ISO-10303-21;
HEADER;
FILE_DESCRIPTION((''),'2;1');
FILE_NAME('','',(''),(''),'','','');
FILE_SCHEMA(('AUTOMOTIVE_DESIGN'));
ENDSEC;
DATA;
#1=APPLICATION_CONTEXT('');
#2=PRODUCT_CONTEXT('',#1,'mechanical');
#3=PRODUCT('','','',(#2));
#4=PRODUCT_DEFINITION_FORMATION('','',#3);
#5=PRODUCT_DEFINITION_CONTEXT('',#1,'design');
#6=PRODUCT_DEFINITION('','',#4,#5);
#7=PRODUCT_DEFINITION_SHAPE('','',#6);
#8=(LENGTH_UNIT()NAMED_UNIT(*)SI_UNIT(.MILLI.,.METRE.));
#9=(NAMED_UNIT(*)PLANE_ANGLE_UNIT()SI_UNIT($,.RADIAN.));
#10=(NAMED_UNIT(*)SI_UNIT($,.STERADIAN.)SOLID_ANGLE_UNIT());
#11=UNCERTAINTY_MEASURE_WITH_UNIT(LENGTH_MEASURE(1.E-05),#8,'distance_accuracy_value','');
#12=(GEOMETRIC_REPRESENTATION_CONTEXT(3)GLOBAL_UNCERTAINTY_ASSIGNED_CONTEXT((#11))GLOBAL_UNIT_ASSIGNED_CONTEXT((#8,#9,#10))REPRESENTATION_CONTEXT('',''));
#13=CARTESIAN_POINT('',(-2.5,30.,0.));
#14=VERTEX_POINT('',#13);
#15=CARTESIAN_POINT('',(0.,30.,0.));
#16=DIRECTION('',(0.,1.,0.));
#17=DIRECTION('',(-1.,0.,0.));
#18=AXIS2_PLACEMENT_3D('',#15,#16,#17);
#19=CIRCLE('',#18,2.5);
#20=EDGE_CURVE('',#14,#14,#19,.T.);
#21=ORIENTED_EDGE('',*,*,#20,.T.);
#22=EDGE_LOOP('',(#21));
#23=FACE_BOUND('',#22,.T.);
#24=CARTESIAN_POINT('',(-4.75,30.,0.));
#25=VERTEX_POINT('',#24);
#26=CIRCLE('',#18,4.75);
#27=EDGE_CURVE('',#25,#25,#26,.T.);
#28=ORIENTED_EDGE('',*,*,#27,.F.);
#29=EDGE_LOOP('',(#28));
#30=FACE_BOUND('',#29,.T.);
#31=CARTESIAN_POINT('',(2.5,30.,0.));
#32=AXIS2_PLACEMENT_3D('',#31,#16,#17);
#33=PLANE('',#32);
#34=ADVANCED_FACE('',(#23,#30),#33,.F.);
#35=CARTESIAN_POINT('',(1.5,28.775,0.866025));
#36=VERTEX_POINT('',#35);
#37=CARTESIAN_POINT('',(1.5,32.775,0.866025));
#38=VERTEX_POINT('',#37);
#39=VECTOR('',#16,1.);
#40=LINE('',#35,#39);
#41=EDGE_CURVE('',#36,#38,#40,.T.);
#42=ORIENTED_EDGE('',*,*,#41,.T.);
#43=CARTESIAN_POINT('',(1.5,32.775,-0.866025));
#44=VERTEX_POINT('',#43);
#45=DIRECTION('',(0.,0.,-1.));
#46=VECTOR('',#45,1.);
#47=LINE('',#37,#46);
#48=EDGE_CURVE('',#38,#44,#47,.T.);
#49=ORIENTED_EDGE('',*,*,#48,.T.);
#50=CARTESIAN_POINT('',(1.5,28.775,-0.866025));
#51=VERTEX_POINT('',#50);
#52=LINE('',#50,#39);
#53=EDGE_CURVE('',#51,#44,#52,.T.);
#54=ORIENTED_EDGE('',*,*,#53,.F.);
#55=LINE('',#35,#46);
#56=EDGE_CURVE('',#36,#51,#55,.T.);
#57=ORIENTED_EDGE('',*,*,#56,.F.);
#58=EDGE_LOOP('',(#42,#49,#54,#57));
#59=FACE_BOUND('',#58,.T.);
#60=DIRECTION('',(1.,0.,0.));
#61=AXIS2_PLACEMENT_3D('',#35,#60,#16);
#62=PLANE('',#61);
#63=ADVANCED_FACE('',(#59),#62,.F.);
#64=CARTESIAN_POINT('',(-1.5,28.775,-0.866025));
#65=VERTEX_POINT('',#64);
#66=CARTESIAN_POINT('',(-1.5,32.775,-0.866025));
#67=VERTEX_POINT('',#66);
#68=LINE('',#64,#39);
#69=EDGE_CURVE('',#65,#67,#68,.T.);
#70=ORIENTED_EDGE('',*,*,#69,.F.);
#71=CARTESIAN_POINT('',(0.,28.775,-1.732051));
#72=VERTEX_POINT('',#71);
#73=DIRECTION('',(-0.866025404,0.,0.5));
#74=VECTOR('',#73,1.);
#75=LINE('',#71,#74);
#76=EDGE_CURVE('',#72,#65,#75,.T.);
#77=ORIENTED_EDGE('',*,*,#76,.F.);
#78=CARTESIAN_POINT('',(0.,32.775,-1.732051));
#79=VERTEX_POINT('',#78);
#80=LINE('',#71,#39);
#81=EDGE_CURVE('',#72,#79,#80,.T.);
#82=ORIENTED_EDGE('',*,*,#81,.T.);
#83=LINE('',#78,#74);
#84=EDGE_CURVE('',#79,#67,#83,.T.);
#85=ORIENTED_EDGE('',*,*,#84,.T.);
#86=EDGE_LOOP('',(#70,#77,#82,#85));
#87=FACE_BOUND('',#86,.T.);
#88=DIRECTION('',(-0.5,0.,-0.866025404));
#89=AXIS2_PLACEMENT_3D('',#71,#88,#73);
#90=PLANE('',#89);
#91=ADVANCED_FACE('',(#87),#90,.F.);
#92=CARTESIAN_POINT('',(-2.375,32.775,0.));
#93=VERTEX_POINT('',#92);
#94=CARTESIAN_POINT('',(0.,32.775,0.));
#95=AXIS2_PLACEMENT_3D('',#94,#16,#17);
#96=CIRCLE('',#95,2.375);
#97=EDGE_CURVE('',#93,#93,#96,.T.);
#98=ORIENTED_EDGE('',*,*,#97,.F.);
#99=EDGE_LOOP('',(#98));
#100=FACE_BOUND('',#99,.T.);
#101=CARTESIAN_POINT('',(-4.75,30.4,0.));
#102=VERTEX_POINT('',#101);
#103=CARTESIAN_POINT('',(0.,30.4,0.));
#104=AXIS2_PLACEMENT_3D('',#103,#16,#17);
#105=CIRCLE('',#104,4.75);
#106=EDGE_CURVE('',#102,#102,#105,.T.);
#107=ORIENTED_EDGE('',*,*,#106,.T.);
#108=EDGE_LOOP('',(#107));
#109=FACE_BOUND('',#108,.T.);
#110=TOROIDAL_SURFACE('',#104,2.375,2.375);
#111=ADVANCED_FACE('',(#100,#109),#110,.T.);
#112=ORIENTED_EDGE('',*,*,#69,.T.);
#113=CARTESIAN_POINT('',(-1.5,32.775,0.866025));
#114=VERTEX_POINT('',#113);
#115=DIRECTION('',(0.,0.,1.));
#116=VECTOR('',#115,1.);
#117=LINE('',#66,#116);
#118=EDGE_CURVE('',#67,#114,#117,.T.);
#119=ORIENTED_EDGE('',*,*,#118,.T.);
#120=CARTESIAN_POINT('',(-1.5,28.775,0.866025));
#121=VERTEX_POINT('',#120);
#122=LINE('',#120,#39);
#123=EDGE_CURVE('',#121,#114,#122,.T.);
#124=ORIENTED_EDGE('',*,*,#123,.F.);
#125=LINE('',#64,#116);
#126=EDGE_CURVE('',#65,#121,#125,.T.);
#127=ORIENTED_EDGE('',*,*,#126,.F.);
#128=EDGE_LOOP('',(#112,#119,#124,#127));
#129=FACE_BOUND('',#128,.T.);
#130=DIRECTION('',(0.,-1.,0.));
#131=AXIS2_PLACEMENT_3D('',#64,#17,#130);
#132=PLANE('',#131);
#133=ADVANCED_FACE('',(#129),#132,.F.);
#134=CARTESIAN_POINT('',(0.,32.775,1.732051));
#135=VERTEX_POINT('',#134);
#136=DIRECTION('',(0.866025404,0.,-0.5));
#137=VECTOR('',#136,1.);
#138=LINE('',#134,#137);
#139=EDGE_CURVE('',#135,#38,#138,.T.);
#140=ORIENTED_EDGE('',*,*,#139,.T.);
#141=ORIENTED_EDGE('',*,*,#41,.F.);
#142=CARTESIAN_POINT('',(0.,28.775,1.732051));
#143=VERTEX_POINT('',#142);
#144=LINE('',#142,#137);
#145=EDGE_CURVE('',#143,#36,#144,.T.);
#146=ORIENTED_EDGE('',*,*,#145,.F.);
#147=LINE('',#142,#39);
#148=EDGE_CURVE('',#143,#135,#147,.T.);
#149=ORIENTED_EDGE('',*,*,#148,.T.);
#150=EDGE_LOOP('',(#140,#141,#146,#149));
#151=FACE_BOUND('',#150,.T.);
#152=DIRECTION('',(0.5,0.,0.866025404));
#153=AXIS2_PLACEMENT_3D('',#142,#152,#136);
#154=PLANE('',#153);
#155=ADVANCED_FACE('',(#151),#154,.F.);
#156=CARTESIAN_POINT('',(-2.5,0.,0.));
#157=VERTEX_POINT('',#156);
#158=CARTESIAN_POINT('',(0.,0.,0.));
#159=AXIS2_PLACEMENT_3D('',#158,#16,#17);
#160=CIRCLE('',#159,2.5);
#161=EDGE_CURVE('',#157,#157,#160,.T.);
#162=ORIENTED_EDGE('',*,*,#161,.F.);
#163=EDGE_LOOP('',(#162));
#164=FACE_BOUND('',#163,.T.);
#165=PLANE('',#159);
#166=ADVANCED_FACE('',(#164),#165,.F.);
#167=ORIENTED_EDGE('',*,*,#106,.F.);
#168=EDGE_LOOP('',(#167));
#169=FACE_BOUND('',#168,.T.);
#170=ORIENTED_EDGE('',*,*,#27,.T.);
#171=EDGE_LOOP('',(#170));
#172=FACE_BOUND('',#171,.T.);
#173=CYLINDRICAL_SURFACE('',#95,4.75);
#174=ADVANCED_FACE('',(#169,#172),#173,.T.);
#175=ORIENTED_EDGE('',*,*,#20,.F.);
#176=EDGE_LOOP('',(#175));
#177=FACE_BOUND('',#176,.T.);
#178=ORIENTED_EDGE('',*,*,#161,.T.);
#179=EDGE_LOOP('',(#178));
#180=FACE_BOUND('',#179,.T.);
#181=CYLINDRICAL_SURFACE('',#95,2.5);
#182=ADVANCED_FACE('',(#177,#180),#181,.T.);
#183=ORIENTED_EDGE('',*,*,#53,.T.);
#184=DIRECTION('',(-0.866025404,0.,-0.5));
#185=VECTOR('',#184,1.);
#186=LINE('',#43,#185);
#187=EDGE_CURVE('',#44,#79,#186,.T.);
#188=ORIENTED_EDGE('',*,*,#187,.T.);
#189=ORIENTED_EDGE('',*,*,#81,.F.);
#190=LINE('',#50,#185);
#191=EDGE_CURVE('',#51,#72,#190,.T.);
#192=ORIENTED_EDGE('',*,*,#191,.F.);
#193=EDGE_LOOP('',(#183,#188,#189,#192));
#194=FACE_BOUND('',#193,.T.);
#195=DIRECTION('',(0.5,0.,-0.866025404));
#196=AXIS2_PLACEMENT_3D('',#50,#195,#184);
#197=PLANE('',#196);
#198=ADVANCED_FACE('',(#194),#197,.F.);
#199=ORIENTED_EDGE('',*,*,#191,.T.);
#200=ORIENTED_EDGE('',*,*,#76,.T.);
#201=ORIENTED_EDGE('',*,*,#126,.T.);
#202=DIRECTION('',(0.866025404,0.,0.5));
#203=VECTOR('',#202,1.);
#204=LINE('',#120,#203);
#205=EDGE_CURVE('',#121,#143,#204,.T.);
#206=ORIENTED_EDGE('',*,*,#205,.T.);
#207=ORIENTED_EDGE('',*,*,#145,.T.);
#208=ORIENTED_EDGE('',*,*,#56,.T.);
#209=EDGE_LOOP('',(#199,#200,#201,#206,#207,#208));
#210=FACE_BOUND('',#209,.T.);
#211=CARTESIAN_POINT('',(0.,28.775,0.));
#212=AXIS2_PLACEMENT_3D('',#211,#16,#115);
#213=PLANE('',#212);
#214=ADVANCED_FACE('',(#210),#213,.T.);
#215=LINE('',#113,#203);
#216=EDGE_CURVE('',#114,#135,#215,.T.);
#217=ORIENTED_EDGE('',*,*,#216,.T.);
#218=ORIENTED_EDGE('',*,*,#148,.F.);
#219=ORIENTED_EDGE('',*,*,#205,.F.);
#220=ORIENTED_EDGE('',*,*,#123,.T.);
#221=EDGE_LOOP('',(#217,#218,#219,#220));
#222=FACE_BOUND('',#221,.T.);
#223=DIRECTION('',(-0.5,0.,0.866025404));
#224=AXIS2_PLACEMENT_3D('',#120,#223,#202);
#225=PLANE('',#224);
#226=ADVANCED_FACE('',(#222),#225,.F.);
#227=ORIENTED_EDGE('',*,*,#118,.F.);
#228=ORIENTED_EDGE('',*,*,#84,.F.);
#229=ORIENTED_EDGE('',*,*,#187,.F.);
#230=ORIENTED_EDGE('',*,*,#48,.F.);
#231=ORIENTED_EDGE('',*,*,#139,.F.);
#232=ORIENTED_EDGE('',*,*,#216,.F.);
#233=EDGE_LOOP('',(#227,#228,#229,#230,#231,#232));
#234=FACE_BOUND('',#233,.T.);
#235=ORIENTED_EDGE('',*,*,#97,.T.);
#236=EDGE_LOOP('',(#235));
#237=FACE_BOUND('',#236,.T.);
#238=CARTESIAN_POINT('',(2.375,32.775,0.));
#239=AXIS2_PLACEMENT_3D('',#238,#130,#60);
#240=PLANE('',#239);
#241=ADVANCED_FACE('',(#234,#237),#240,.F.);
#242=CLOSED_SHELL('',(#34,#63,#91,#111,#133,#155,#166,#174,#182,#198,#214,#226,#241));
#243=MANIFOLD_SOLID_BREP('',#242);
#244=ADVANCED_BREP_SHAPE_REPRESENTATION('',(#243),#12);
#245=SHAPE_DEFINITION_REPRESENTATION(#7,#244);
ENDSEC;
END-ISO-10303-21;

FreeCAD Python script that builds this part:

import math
import FreeCAD as App
import Part
import Sketcher

V = App.Vector
Q = App.Units.Quantity


def add_polygon(sketch, points):
    """Adds a closed chain of lines whose ends are joined by coincident constraints."""
    first, n = sketch.GeometryCount, len(points)
    for a, b in zip(points, points[1:] + points[:1]):
        sketch.addGeometry(Part.LineSegment(App.Vector(*a, 0), App.Vector(*b, 0)), False)
    for i in range(n):
        sketch.addConstraint(Sketcher.Constraint("Coincident", first + i, 2, first + (i + 1) % n, 1))

doc = App.newDocument("Part")
body = doc.addObject("PartDesign::Body", "Body")

# Sketch on XY plane
sketch1 = body.newObject("Sketcher::SketchObject", "Sketch")
sketch1.AttachmentSupport = (doc.getObject("XY_Plane"), [""])
sketch1.MapMode = "FlatFace"
sketch1.addGeometry(Part.LineSegment(V(0, 0, 0), V(2.5, 0, 0)), False)
sketch1.addGeometry(Part.LineSegment(V(2.5, 0, 0), V(2.5, 30, 0)), False)
sketch1.addGeometry(Part.LineSegment(V(2.5, 30, 0), V(4.75, 30, 0)), False)
sketch1.addGeometry(Part.LineSegment(V(4.75, 30, 0), V(4.75, 30.4, 0)), False)
sketch1.addGeometry(Part.ArcOfCircle(Part.Circle(V(2.37, 30.4, 0), V(0, 0, 1), 2.38), math.radians(0), math.radians(90)), False)
sketch1.addGeometry(Part.LineSegment(V(2.38, 32.77, 0), V(0, 32.77, 0)), False)
sketch1.addGeometry(Part.LineSegment(V(0, 32.77, 0), V(0, 0, 0)), False)
sketch1.addConstraint(Sketcher.Constraint("Coincident", 0, 2, 1, 1))
sketch1.addConstraint(Sketcher.Constraint("Coincident", 1, 2, 2, 1))
sketch1.addConstraint(Sketcher.Constraint("Coincident", 2, 2, 3, 1))
sketch1.addConstraint(Sketcher.Constraint("Tangent", 3, 2, 4, 1))
sketch1.addConstraint(Sketcher.Constraint("Tangent", 4, 2, 5, 1))
sketch1.addConstraint(Sketcher.Constraint("Coincident", 5, 2, 6, 1))
sketch1.addConstraint(Sketcher.Constraint("Coincident", 6, 2, 0, 1))
sketch1.addConstraint(Sketcher.Constraint("Horizontal", 0))
sketch1.addConstraint(Sketcher.Constraint("Vertical", 1))
sketch1.addConstraint(Sketcher.Constraint("Horizontal", 2))
sketch1.addConstraint(Sketcher.Constraint("Vertical", 3))
sketch1.addConstraint(Sketcher.Constraint("Horizontal", 5))
sketch1.addConstraint(Sketcher.Constraint("Vertical", 6))
sketch1.addConstraint(Sketcher.Constraint("Coincident", 6, 2, -1, 1))
sketch1.addConstraint(Sketcher.Constraint("DistanceY", 1, 1, 1, 2, 30.0))
sketch1.addConstraint(Sketcher.Constraint("DistanceX", 0, 1, 0, 2, 2.5))
sketch1.addConstraint(Sketcher.Constraint("DistanceY", 3, 1, 3, 2, 0.4))
sketch1.addConstraint(Sketcher.Constraint("Radius", 4, 2.375))
sketch1.addConstraint(Sketcher.Constraint("DistanceX", 2, 1, 2, 2, 2.25))
revolution = body.newObject("PartDesign::Revolution", "Revolution")
revolution.Profile = sketch1
revolution.ReferenceAxis = (sketch1, ["V_Axis"])
revolution.Angle = 360

# Sketch on XZ plane
sketch2 = body.newObject("Sketcher::SketchObject", "Sketch001")
sketch2.AttachmentSupport = (doc.getObject("XZ_Plane"), [""])
sketch2.MapMode = "FlatFace"
sketch2.AttachmentOffset = App.Placement(V(0, 0, -32.775), App.Rotation())
add_polygon(sketch2, [(-1.5, -0.9), (-1.5, 0.9), (0, 1.7), (1.5, 0.9), (1.5, -0.9), (0, -1.7)])  # lines 0-5
sketch2.addConstraint(Sketcher.Constraint("Vertical", 0))
sketch2.addConstraint(Sketcher.Constraint("Vertical", 3))
sketch2.addConstraint(Sketcher.Constraint("Symmetric", 0, 2, 3, 2, -1, 1))
sketch2.addConstraint(Sketcher.Constraint("Symmetric", 1, 2, 4, 2, -1, 1))
sketch2.addConstraint(Sketcher.Constraint("PointOnObject", 1, 2, -2))
sketch2.addConstraint(Sketcher.Constraint("Parallel", 2, 5))
sketch2.addConstraint(Sketcher.Constraint("Horizontal", 0, 2, 2, 2))
sketch2.addConstraint(Sketcher.Constraint("Angle", 1, Q("30 deg")))
sketch2.addConstraint(Sketcher.Constraint("DistanceX", 0, 2, 2, 2, 3.0))
sketch2.addConstraint(Sketcher.Constraint("DistanceY", 0, 1, 0, 2, 1.732051))
pocket1 = body.newObject("PartDesign::Pocket", "Pocket")
pocket1.Profile = sketch2
pocket1.Length = 4
pocket1.Reversed = True

doc.recompute()
